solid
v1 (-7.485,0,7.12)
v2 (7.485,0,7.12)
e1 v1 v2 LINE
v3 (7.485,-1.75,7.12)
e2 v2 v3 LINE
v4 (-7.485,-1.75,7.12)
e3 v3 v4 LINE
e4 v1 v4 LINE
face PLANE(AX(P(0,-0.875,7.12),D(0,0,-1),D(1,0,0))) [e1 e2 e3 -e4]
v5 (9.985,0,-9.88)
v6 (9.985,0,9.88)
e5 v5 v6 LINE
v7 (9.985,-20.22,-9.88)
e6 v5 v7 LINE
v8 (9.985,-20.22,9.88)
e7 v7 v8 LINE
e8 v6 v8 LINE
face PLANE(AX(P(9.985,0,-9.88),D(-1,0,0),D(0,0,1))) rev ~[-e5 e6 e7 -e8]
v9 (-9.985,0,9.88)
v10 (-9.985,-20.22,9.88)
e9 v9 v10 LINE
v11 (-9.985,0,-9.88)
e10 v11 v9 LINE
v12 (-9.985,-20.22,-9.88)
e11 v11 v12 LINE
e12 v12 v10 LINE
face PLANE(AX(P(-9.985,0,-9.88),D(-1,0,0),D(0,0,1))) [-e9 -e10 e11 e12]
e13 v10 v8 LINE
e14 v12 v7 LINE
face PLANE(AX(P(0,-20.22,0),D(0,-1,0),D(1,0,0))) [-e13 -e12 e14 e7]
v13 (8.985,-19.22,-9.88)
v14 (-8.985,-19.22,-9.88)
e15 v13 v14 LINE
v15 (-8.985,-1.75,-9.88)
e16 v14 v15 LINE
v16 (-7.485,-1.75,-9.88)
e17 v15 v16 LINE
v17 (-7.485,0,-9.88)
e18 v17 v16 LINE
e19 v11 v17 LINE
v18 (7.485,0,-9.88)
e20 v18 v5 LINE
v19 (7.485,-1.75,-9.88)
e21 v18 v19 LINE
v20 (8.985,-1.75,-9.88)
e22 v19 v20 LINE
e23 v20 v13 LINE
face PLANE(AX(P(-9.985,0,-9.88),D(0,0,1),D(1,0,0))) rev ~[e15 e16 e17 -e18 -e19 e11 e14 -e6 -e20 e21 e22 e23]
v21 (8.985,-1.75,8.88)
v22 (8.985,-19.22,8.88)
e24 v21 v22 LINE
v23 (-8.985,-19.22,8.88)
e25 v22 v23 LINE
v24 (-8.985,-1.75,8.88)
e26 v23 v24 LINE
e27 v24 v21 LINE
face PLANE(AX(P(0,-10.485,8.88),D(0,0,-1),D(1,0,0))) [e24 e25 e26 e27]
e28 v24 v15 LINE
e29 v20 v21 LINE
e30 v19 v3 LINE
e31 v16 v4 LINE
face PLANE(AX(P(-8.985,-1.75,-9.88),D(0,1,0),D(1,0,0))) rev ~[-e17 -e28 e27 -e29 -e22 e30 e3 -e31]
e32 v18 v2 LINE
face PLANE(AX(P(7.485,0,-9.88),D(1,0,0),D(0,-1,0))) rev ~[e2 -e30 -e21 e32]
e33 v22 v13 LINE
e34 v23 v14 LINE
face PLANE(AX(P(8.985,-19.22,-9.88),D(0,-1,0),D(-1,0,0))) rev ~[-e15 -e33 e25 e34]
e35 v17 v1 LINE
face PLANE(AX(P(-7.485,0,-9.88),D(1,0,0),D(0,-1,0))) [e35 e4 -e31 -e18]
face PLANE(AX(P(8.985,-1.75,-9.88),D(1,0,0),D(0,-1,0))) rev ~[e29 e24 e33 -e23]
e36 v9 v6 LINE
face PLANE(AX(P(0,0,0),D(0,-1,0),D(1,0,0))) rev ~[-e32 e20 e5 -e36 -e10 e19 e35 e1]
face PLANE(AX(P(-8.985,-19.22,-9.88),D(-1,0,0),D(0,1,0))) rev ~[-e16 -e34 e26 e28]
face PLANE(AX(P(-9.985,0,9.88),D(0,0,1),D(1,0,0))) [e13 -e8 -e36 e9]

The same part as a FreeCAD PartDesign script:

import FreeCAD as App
import Part
import Sketcher

V = App.Vector
Q = App.Units.Quantity


def add_polygon(sketch, points):
    """Adds a closed chain of lines whose ends are joined by coincident constraints."""
    first, n = sketch.GeometryCount, len(points)
    for a, b in zip(points, points[1:] + points[:1]):
        sketch.addGeometry(Part.LineSegment(App.Vector(*a, 0), App.Vector(*b, 0)), False)
    for i in range(n):
        sketch.addConstraint(Sketcher.Constraint("Coincident", first + i, 2, first + (i + 1) % n, 1))

doc = App.newDocument("Part")
params = doc.addObject("Spreadsheet::Sheet", "Params")
for row, (alias, value) in enumerate([
    ("sketch1_width", "19.97 mm"),
    ("sketch1_height", "19.76 mm"),
    ("pad1_length", "20.22 mm"),
    ("sketch2_width", "17.97 mm"),
    ("sketch2_height", "17.47 mm"),
    ("pocket1_length", "18.76 mm"),
    ("sketch3_width", "1.5 mm"),
    ("sketch3_width2", "14.97 mm"),
    ("sketch3_height", "1.75 mm"),
    ("sketch3_height2", "17.47 mm"),
    ("pocket2_length", "17 mm"),
], start=1):
    params.set(f"A{row}", alias)
    params.set(f"B{row}", "=" + value)
    params.setAlias(f"B{row}", alias)

body = doc.addObject("PartDesign::Body", "Body")

sketch1 = body.newObject("Sketcher::SketchObject", "Sketch")
sketch1.AttachmentSupport = (doc.getObject("XZ_Plane"), [""])
sketch1.MapMode = "FlatFace"
add_polygon(sketch1, [(-9.985, 9.88), (-9.985, -9.88), (9.985, -9.88), (9.985, 9.88)])
sketch1.addConstraint([
    Sketcher.Constraint("Vertical", 0),
    Sketcher.Constraint("Horizontal", 1),
    Sketcher.Constraint("Vertical", 2),
    Sketcher.Constraint("Horizontal", 3),
    Sketcher.Constraint("Symmetric", 0, 2, 2, 2, -1, 1),
    Sketcher.Constraint("DistanceX", 1, 1, 1, 2, Q("19.97 mm")),
    Sketcher.Constraint("DistanceY", 0, 2, 0, 1, Q("19.76 mm")),
])
sketch1.setExpression("Constraints[9]", "Params.sketch1_width")
sketch1.setExpression("Constraints[10]", "Params.sketch1_height")
pad1 = body.newObject("PartDesign::Pad", "Pad")
pad1.Profile = sketch1
pad1.setExpression("Length", "Params.pad1_length")

sketch2 = body.newObject("Sketcher::SketchObject", "Sketch001")
sketch2.AttachmentSupport = (doc.getObject("XY_Plane"), [""])
sketch2.MapMode = "FlatFace"
sketch2.AttachmentOffset = App.Placement(V(0, 0, -9.88), App.Rotation())
add_polygon(sketch2, [(8.985, -1.75), (8.985, -19.22), (-8.985, -19.22), (-8.985, -1.75)])
sketch2.addConstraint([
    Sketcher.Constraint("Vertical", 0),
    Sketcher.Constraint("Horizontal", 1),
    Sketcher.Constraint("Vertical", 2),
    Sketcher.Constraint("Horizontal", 3),
    Sketcher.Constraint("DistanceX", 1, 2, 1, 1, Q("17.97 mm")),
    Sketcher.Constraint("DistanceY", 0, 2, 0, 1, Q("17.47 mm")),
    Sketcher.Constraint("DistanceY", 0, 2, -1, 1, Q("19.22 mm")),
    Sketcher.Constraint("DistanceX", -1, 1, 0, 2, Q("8.985 mm")),
])
sketch2.setExpression("Constraints[8]", "Params.sketch2_width")
sketch2.setExpression("Constraints[9]", "Params.sketch2_height")
pocket1 = body.newObject("PartDesign::Pocket", "Pocket")
pocket1.Profile = sketch2
pocket1.setExpression("Length", "Params.pocket1_length")
pocket1.Reversed = True

sketch3 = body.newObject("Sketcher::SketchObject", "Sketch002")
sketch3.AttachmentSupport = (doc.getObject("XY_Plane"), [""])
sketch3.MapMode = "FlatFace"
sketch3.AttachmentOffset = App.Placement(V(0, 0, -9.88), App.Rotation())
add_polygon(sketch3, [(-7.485, -1.75), (-7.485, 0), (7.485, 0), (7.485, -1.75), (8.985, -1.75), (8.985, -19.22), (-8.985, -19.22), (-8.985, -1.75)])
sketch3.addConstraint([
    Sketcher.Constraint("Vertical", 0),
    Sketcher.Constraint("Horizontal", 1),
    Sketcher.Constraint("Vertical", 2),
    Sketcher.Constraint("Horizontal", 3),
    Sketcher.Constraint("Vertical", 4),
    Sketcher.Constraint("Horizontal", 5),
    Sketcher.Constraint("Vertical", 6),
    Sketcher.Constraint("Horizontal", 7),
    Sketcher.Constraint("Symmetric", 0, 2, 1, 2, -1, 1),
    Sketcher.Constraint("Symmetric", 3, 2, 6, 2, -2),
    Sketcher.Constraint("DistanceX", 3, 1, 3, 2, Q("1.5 mm")),
    Sketcher.Constraint("DistanceX", 1, 1, 1, 2, Q("14.97 mm")),
    Sketcher.Constraint("DistanceY", 0, 1, 0, 2, Q("1.75 mm")),
    Sketcher.Constraint("DistanceY", 4, 2, 4, 1, Q("17.47 mm")),
])
sketch3.setExpression("Constraints[18]", "Params.sketch3_width")
sketch3.setExpression("Constraints[19]", "Params.sketch3_width2")
sketch3.setExpression("Constraints[20]", "Params.sketch3_height")
sketch3.setExpression("Constraints[21]", "Params.sketch3_height2")
pocket2 = body.newObject("PartDesign::Pocket", "Pocket001")
pocket2.Profile = sketch3
pocket2.setExpression("Length", "Params.pocket2_length")
pocket2.Reversed = True

doc.recompute()
